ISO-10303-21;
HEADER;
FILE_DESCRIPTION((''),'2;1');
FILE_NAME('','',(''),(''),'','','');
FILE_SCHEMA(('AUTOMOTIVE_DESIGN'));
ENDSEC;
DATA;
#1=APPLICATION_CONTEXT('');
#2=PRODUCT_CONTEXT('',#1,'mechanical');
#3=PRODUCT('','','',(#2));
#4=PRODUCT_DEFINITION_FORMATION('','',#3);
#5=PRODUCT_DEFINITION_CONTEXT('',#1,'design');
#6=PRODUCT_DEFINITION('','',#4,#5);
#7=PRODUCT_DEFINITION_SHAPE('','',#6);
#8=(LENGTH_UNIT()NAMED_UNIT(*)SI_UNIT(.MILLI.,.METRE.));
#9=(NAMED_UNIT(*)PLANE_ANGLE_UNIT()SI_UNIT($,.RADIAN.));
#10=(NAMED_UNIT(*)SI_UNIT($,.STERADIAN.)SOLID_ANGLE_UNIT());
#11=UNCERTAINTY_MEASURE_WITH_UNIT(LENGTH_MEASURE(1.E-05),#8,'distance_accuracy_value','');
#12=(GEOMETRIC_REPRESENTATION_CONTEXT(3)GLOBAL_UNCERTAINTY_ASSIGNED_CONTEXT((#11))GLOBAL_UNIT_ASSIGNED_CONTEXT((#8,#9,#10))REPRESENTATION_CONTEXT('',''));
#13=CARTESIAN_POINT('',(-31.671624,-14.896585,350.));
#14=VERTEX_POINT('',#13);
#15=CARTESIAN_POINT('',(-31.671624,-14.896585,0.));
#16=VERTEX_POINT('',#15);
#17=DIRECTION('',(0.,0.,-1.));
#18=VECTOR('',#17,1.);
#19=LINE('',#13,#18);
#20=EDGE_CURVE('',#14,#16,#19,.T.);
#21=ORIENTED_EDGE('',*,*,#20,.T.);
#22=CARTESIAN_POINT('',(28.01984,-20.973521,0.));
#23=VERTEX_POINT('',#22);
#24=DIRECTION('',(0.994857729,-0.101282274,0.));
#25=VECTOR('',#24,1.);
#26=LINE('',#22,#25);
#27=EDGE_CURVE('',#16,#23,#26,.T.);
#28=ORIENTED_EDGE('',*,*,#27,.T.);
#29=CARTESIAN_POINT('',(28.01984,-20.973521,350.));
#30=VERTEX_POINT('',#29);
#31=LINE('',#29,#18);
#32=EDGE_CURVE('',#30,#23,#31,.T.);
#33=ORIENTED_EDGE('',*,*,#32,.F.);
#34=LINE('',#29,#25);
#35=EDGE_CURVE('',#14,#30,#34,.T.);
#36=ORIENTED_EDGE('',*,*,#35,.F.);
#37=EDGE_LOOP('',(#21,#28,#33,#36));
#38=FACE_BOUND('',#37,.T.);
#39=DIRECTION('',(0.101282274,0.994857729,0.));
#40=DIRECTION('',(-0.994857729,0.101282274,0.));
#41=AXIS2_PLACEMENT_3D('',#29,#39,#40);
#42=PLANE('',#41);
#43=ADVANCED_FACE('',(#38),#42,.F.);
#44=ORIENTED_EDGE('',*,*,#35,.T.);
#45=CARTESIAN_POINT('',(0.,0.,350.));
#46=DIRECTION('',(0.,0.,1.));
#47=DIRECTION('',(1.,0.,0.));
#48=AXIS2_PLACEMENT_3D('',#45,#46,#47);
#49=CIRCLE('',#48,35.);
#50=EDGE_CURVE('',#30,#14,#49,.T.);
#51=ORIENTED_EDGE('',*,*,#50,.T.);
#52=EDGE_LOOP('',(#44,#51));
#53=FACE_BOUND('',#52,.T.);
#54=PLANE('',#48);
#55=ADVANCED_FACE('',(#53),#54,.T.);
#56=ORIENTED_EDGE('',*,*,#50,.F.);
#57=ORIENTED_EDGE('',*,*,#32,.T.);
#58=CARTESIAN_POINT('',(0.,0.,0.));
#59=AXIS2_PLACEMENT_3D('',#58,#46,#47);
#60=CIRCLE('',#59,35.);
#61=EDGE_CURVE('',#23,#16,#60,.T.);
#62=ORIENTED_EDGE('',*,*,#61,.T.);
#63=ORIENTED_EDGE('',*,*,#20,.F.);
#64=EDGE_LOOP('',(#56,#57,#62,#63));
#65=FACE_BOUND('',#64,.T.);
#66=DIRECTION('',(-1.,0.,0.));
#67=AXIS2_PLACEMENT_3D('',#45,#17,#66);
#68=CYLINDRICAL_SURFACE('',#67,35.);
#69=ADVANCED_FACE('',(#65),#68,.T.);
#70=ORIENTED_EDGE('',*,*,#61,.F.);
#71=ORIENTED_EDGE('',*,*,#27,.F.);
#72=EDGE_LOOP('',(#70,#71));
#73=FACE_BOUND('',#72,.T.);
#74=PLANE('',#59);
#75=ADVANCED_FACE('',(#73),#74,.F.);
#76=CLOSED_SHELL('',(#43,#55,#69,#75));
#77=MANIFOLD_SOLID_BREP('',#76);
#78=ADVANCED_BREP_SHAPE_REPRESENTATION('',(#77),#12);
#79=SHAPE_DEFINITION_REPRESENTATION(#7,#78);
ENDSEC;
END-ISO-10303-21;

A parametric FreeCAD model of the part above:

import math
import FreeCAD as App
import Part
import Sketcher
Q = App.Units.Quantity

doc = App.newDocument("Part")
params = doc.addObject("Spreadsheet::Sheet", "Params")
for row, (alias, value) in enumerate([
    ("sketch1_radius", "35 mm"),
    ("sketch1_length", "60 mm"),
    ("pad1_length", "350 mm"),
], start=1):
    params.set(f"A{row}", alias)
    params.set(f"B{row}", "=" + value)
    params.setAlias(f"B{row}", alias)

body = doc.addObject("PartDesign::Body", "Body")

# Sketch on XY plane
sketch1 = body.newObject("Sketcher::SketchObject", "Sketch")
sketch1.AttachmentSupport = (doc.getObject("XY_Plane"), [""])
sketch1.MapMode = "FlatFace"
sketch1.addGeometry(Part.LineSegment(App.Vector(-32, -15, 0), App.Vector(28, -21, 0)), False)
sketch1.addGeometry(Part.ArcOfCircle(Part.Circle(App.Vector(0, 0, 0), App.Vector(0, 0, 1), 35), math.radians(-37), math.radians(205)), False)
sketch1.addConstraint(Sketcher.Constraint("Coincident", 0, 1, 1, 2))
sketch1.addConstraint(Sketcher.Constraint("Coincident", 1, 1, 0, 2))
sketch1.addConstraint(Sketcher.Constraint("Coincident", 1, 3, -1, 1))
sketch1.addConstraint(Sketcher.Constraint("Radius", 1, Q("35 mm")))
sketch1.addConstraint(Sketcher.Constraint("Distance", 0, Q("60 mm")))
sketch1.addConstraint(Sketcher.Constraint("DistanceX", -1, 1, 1, 1, Q("28.01984 mm")))
sketch1.setExpression("Constraints[3]", "Params.sketch1_radius")
sketch1.setExpression("Constraints[4]", "Params.sketch1_length")
pad1 = body.newObject("PartDesign::Pad", "Pad")
pad1.Profile = sketch1
pad1.setExpression("Length", "Params.pad1_length")

doc.recompute()
